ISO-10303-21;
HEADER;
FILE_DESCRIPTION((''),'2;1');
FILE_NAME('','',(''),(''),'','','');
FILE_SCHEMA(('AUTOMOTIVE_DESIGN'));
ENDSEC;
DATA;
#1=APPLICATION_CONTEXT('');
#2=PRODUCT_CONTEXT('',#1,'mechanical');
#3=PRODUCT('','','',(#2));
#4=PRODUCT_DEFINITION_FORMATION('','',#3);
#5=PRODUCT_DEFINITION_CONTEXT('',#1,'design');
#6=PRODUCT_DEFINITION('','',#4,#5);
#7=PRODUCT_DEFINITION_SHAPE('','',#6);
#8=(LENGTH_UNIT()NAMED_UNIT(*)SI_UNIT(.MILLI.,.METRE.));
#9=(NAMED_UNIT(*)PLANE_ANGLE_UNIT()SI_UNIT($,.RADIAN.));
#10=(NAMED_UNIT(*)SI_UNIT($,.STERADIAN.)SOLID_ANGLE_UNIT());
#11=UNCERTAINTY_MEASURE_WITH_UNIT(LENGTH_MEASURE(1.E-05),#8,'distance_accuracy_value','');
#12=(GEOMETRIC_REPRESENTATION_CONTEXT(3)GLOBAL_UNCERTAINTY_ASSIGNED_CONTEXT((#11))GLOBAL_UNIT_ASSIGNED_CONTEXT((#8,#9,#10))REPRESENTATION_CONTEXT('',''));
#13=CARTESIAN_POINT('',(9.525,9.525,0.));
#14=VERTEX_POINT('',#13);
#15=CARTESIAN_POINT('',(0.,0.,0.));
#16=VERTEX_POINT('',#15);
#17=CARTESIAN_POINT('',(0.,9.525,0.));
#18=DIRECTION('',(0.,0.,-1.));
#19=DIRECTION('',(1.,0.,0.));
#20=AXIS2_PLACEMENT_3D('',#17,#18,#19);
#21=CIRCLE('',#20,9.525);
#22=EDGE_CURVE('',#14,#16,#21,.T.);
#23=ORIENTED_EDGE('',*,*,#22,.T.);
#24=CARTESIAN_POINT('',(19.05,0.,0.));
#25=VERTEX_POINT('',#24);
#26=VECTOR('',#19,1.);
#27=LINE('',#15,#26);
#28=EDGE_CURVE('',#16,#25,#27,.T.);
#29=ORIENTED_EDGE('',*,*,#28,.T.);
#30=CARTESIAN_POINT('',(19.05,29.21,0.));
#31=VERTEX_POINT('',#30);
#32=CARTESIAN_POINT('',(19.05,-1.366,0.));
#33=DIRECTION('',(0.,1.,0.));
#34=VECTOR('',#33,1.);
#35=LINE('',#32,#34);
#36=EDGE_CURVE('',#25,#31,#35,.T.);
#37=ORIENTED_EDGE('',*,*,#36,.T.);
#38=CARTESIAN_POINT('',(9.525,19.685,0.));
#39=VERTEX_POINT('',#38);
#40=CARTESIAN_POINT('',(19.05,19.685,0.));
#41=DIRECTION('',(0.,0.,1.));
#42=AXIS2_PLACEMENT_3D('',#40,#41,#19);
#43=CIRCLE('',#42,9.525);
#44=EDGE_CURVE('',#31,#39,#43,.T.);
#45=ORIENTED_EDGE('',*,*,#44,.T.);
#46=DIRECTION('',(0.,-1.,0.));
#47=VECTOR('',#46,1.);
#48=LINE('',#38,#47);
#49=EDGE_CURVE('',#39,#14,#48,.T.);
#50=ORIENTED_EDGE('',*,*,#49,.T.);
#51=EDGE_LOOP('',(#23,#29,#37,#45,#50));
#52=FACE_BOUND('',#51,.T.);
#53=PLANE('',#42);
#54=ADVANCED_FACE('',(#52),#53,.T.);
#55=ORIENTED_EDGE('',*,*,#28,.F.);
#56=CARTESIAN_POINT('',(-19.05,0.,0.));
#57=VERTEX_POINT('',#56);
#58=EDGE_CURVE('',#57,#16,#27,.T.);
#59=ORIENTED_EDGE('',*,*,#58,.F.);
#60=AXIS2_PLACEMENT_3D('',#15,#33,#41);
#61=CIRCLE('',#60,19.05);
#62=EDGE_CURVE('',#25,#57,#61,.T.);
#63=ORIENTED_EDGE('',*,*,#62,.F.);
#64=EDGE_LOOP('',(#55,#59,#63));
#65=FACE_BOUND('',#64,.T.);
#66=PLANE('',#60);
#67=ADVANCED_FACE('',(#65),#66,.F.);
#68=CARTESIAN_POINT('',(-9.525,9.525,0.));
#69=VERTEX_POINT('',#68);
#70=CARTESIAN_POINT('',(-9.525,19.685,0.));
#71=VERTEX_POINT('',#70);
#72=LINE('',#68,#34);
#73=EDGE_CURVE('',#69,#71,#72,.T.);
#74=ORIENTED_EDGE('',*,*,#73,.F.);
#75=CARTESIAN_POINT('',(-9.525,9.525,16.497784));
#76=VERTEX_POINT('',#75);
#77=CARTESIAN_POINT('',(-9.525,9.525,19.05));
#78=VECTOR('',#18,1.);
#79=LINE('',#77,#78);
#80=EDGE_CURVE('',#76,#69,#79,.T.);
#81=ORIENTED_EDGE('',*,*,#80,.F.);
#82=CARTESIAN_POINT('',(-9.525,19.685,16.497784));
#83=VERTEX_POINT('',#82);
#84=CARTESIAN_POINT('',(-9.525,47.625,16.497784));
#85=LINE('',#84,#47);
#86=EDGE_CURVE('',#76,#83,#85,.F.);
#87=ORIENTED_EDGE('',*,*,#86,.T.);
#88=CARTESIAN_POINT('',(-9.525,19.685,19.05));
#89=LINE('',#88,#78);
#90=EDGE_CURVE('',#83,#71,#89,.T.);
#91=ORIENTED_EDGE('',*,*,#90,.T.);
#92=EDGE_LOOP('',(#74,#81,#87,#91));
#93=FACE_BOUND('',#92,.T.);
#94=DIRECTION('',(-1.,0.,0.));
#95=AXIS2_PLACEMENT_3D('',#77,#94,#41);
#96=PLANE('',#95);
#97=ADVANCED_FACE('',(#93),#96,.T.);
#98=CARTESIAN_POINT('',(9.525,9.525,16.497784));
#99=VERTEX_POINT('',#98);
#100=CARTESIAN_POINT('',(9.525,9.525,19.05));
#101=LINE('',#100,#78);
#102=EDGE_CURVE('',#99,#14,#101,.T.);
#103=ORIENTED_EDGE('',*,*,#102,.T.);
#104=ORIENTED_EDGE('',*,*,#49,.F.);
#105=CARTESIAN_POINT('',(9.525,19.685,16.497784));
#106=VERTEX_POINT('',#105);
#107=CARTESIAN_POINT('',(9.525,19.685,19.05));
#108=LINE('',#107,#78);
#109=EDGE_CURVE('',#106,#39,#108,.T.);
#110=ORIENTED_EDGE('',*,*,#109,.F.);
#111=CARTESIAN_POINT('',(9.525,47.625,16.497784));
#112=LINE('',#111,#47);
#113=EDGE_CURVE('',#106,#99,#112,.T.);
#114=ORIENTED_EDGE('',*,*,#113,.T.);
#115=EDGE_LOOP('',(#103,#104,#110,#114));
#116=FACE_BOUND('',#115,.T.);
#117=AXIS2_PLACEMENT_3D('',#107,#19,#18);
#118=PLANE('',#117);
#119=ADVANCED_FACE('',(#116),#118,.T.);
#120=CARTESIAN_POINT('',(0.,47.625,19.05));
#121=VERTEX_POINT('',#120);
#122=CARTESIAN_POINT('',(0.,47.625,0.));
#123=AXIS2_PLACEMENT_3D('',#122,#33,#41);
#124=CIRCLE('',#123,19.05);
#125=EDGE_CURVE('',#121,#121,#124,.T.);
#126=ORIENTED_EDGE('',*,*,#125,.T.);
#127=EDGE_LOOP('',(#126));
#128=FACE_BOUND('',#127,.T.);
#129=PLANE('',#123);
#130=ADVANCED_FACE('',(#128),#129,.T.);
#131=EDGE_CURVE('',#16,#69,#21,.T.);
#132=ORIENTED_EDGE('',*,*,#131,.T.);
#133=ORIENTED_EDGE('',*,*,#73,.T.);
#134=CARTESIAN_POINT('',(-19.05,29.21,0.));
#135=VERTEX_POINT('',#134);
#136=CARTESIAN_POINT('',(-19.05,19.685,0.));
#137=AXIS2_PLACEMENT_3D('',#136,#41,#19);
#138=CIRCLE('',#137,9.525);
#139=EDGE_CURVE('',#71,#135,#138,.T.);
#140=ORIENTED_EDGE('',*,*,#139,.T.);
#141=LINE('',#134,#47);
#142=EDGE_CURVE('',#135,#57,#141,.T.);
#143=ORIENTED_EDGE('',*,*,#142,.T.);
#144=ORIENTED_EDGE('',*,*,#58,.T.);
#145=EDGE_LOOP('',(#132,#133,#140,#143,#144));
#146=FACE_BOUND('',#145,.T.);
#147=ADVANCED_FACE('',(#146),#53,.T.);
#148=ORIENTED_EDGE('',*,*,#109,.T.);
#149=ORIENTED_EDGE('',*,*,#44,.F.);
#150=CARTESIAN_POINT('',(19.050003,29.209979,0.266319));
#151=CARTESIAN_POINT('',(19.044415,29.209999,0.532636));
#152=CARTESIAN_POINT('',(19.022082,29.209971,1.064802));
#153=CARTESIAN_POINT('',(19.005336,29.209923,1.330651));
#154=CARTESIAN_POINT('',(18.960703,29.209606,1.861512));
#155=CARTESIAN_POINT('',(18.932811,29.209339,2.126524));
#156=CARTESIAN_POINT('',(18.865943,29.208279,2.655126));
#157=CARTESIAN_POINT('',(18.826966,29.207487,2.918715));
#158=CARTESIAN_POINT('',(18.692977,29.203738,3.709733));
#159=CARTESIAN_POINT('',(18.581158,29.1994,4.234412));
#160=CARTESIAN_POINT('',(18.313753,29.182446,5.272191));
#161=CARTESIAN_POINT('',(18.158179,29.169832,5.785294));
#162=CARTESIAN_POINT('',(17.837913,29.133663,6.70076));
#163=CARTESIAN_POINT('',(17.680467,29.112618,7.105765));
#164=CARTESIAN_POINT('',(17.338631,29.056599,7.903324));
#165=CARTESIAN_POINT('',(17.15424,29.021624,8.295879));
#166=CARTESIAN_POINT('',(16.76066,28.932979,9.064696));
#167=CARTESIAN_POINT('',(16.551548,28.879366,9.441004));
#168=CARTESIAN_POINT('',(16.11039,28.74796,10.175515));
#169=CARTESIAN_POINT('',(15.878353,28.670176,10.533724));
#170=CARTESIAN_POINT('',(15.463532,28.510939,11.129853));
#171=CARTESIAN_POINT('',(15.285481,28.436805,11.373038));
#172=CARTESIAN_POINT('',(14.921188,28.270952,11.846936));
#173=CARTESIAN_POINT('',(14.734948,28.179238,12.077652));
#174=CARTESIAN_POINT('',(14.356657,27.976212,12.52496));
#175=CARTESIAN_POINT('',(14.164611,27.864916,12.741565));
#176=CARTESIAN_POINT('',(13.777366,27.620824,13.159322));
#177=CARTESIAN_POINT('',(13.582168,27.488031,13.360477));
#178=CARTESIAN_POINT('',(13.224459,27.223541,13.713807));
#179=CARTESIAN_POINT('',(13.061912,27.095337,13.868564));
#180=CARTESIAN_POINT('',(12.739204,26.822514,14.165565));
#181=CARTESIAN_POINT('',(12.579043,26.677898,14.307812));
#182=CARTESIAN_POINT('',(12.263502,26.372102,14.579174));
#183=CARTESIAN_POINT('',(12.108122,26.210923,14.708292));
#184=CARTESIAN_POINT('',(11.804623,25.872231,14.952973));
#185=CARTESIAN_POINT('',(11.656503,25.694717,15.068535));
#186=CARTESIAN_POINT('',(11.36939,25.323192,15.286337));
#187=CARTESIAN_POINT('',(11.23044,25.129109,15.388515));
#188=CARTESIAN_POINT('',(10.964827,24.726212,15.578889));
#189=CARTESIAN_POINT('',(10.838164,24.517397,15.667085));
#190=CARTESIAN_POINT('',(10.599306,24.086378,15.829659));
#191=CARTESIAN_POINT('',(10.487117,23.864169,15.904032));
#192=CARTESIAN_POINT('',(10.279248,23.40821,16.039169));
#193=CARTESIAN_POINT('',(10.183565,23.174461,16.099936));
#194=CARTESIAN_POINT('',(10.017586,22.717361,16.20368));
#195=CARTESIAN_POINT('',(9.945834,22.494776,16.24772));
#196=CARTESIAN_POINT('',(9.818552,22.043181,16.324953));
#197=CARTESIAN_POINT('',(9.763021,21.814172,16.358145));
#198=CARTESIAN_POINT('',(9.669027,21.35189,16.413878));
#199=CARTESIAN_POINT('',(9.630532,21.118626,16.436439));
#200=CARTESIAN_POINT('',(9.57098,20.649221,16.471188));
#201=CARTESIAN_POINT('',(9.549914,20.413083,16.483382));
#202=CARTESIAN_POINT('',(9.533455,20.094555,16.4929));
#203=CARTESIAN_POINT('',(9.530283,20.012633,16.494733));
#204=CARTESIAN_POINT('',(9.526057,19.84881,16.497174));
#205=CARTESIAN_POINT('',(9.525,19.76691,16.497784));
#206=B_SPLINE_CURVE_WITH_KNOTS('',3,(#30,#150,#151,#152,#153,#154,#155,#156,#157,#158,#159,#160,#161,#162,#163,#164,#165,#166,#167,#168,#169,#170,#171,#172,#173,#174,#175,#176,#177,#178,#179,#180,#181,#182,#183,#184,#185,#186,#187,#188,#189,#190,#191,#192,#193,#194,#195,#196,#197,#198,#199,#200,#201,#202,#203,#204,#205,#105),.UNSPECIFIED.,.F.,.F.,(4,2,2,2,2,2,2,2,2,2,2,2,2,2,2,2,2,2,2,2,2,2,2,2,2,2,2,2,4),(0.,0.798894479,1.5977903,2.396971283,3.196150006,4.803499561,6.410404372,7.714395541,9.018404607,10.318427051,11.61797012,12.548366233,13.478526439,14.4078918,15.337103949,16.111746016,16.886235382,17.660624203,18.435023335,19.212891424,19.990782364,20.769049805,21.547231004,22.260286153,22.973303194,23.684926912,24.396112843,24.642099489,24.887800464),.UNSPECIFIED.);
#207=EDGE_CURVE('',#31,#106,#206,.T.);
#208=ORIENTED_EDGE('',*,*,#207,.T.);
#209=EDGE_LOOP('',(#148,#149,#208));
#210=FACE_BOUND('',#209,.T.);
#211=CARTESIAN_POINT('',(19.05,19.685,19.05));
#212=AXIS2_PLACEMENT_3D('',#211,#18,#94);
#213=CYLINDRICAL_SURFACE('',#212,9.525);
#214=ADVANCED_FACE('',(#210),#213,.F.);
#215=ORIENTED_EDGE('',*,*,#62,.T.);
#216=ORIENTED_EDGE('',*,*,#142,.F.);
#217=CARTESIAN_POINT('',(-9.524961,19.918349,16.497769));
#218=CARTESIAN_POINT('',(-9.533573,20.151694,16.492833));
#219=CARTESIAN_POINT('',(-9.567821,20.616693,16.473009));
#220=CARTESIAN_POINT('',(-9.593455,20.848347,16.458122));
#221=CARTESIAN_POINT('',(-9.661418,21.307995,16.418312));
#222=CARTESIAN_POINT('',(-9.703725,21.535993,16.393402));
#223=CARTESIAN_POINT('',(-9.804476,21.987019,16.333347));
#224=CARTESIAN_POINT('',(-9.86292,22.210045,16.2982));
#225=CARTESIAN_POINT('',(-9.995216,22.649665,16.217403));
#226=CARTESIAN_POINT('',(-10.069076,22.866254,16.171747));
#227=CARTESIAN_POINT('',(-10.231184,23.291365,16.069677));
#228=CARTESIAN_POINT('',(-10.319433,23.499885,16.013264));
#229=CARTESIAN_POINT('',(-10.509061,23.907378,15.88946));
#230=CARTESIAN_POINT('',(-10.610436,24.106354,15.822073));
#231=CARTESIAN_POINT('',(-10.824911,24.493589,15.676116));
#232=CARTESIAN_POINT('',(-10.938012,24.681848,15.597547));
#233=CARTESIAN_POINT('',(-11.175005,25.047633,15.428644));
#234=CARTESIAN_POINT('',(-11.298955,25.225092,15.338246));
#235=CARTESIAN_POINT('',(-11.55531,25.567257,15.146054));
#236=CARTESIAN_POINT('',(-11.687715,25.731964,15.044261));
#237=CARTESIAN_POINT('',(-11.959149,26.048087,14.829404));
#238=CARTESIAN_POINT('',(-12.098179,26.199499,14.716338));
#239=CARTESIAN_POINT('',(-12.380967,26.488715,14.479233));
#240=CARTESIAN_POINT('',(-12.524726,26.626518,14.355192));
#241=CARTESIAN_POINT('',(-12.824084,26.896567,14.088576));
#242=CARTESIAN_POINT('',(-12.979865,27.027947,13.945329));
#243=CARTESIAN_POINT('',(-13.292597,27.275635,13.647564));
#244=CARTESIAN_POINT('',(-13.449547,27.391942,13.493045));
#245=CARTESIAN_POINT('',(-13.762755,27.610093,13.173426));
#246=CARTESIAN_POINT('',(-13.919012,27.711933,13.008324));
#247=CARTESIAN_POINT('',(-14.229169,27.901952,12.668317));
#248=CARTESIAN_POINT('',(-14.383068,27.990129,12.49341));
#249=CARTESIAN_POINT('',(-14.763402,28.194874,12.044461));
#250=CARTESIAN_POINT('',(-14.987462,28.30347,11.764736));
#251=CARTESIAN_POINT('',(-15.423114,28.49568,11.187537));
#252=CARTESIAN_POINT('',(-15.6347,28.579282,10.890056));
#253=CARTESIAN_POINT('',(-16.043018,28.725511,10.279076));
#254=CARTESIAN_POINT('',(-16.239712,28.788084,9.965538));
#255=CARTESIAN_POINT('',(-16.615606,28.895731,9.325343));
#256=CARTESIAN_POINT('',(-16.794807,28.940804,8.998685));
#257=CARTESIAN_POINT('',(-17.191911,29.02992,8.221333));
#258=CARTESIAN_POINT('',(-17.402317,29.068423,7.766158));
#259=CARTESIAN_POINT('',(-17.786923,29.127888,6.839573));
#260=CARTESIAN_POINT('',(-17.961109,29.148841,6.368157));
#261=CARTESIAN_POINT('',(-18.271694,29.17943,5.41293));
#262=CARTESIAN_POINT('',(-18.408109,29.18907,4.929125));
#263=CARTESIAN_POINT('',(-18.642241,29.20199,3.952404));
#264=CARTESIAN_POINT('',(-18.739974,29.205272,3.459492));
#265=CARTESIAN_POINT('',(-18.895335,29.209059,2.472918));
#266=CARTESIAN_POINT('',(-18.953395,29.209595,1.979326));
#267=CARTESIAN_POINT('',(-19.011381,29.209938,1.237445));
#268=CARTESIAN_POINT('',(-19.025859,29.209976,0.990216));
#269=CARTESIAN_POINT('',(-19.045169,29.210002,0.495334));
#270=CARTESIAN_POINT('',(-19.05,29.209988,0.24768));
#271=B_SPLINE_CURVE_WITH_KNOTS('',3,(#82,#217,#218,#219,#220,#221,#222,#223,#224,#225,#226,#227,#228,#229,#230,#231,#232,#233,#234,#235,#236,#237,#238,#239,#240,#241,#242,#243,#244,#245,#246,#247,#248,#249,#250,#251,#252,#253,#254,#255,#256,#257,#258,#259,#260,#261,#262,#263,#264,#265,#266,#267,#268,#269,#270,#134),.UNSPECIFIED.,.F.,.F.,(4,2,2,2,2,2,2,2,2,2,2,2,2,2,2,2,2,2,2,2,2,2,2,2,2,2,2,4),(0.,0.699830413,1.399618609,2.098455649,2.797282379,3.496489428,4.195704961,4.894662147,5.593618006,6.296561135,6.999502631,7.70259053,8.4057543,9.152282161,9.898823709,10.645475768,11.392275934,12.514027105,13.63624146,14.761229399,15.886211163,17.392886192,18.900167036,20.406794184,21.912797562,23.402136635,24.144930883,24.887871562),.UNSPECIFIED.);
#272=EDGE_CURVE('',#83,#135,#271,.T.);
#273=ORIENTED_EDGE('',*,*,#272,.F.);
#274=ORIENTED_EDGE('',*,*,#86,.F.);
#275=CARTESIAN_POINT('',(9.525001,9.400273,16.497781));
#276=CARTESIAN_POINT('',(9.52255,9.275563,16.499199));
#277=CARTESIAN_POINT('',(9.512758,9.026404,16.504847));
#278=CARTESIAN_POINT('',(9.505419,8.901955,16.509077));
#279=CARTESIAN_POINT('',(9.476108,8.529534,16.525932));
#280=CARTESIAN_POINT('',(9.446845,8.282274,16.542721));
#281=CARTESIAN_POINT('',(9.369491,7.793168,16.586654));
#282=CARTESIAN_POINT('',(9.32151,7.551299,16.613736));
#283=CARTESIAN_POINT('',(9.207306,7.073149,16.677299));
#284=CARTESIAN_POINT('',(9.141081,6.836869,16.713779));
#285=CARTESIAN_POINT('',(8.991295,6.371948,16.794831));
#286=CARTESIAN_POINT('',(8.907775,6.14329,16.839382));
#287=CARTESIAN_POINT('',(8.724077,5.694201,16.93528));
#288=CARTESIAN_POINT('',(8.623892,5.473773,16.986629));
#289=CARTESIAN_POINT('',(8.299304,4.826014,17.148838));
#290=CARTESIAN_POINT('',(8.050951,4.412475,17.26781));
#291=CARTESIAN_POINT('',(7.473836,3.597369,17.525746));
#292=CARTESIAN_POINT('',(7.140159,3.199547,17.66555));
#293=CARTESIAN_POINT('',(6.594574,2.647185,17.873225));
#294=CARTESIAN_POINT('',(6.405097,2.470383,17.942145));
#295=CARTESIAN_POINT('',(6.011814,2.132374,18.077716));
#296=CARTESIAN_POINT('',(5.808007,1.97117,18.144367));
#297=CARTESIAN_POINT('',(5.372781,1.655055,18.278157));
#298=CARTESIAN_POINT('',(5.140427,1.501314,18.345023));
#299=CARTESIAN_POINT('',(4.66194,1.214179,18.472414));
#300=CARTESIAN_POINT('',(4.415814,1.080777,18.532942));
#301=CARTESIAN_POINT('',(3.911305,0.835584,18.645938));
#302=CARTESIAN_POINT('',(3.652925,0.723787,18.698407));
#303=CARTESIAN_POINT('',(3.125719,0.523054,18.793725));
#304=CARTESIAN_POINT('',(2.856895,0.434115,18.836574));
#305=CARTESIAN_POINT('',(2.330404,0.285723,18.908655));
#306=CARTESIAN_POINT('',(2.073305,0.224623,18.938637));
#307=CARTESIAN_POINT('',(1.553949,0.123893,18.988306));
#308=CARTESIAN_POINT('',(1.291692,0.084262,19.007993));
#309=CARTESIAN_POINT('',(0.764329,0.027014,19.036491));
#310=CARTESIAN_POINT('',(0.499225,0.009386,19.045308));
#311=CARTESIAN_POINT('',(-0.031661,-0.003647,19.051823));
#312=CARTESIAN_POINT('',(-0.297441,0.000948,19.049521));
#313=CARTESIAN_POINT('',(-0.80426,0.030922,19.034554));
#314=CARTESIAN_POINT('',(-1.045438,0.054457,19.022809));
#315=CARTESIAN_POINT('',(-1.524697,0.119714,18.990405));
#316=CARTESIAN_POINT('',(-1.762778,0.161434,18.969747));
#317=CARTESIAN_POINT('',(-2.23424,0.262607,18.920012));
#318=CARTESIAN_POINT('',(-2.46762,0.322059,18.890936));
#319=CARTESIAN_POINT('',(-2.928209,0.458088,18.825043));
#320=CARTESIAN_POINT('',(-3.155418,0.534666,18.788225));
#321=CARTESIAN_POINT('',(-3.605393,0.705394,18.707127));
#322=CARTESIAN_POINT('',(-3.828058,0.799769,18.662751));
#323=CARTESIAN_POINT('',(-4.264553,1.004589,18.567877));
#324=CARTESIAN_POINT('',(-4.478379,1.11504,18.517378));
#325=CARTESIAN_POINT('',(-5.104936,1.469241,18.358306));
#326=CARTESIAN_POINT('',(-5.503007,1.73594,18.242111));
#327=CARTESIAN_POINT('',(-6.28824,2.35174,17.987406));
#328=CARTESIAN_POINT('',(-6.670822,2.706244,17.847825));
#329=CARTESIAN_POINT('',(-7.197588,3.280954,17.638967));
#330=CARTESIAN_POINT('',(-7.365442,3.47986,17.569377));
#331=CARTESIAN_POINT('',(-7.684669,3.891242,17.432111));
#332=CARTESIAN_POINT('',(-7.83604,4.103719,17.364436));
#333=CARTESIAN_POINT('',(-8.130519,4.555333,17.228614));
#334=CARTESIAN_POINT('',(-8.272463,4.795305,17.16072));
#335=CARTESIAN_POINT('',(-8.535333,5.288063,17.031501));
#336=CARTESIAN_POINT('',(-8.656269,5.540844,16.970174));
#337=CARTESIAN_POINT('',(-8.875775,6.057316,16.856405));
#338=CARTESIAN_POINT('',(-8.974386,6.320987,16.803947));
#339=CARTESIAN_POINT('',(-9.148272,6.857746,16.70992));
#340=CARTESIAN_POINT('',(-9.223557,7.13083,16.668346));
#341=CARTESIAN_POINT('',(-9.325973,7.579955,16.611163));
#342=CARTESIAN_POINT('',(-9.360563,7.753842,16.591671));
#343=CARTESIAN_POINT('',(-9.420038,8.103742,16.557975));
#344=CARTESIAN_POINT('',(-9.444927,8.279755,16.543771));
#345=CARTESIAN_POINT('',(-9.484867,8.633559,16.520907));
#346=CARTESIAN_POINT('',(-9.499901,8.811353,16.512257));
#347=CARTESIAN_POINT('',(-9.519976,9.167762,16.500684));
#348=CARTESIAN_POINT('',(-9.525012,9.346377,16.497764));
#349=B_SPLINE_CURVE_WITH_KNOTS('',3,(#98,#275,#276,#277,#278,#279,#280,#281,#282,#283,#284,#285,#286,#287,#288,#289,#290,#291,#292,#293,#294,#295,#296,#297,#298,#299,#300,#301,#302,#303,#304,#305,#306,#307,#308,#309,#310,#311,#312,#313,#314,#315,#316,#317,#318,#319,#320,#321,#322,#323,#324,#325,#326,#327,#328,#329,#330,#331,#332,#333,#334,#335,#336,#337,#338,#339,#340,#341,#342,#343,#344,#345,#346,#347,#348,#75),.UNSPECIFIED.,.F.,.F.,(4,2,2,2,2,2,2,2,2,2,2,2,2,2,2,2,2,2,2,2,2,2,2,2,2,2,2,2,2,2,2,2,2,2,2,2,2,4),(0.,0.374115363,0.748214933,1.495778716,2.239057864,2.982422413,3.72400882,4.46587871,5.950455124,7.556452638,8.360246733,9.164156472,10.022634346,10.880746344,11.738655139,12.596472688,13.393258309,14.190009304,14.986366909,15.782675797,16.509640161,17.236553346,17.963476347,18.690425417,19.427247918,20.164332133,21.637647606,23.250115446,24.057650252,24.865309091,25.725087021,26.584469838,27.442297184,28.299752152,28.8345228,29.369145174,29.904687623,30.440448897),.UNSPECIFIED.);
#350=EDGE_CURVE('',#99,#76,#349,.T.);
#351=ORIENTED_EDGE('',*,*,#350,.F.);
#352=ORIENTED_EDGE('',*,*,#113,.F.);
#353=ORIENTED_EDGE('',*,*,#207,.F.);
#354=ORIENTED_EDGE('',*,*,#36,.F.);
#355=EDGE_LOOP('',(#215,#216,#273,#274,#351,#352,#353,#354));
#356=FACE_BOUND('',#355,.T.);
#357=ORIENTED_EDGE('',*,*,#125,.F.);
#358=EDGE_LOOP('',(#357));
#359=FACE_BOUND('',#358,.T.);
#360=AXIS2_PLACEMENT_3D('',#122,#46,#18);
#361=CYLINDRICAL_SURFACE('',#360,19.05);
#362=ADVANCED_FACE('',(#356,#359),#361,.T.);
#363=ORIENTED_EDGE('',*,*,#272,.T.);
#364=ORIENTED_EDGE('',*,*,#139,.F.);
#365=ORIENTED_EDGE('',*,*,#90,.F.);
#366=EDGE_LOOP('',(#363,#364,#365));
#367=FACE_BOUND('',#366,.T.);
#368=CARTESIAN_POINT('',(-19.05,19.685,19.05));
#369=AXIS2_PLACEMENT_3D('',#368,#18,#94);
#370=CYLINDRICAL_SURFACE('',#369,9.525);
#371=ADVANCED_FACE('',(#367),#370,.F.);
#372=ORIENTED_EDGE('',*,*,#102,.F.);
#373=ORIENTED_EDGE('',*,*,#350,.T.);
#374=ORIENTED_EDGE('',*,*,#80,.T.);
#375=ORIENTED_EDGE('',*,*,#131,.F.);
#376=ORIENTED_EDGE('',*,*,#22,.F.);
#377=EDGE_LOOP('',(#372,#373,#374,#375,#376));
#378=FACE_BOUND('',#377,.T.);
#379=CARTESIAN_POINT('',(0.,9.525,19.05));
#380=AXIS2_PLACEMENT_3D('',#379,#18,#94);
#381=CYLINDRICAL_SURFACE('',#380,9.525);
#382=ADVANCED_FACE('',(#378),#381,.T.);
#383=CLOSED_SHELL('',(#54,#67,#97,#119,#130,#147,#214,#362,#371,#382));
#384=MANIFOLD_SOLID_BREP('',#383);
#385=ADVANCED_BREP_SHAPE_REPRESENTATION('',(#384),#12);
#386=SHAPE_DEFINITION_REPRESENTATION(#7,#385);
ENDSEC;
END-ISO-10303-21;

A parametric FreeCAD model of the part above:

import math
import FreeCAD as App
import Part
import Sketcher
from FreeCAD import Vector
Q = App.Units.Quantity

doc = App.newDocument("Part")
params = doc.addObject("Spreadsheet::Sheet", "Params")
for row, (alias, value) in enumerate([
    ("sketch1_diameter", "1.5 in"),
    ("pad1_length", "1.875 in"),
    ("sketch2_width", "1.5 in"),
    ("sketch2_height", "0.4 in"),
    ("sketch2_radius", "0.375 in"),
], start=1):
    params.set(f"A{row}", alias)
    params.set(f"B{row}", "=" + value)
    params.setAlias(f"B{row}", alias)

body = doc.addObject("PartDesign::Body", "Body")

sketch1 = body.newObject("Sketcher::SketchObject", "Sketch")
sketch1.AttachmentSupport = (doc.getObject("XZ_Plane"), [""])
sketch1.MapMode = "FlatFace"
sketch1.addGeometry(Part.Circle(Vector(0, 0, 0), Vector(0, 0, 1), 19), False)
sketch1.addConstraint([
    Sketcher.Constraint("Coincident", 0, 3, -1, 1),
    Sketcher.Constraint("Diameter", 0, Q("1.5 in")),
])
sketch1.setExpression("Constraints[1]", "Params.sketch1_diameter")
pad1 = body.newObject("PartDesign::Pad", "Pad")
pad1.Profile = sketch1
pad1.setExpression("Length", "Params.pad1_length")
pad1.Reversed = True

sketch2 = body.newObject("Sketcher::SketchObject", "Sketch001")
sketch2.AttachmentSupport = (doc.getObject("XY_Plane"), [""])
sketch2.MapMode = "FlatFace"
sketch2.addGeometry([
    Part.LineSegment(Vector(-19, -1, 0), Vector(19, -1, 0)),
    Part.LineSegment(Vector(19, -1, 0), Vector(19, 29, 0)),
    Part.ArcOfCircle(Part.Circle(Vector(19, 20, 0), Vector(0, 0, 1), 10), math.radians(90), math.radians(180)),
    Part.LineSegment(Vector(10, 20, 0), Vector(10, 10, 0)),
    Part.ArcOfCircle(Part.Circle(Vector(0, 10, 0), Vector(0, 0, 1), 10), math.radians(180), math.radians(360)),
    Part.LineSegment(Vector(-10, 10, 0), Vector(-10, 20, 0)),
    Part.ArcOfCircle(Part.Circle(Vector(-19, 20, 0), Vector(0, 0, 1), 10), math.radians(0), math.radians(90)),
    Part.LineSegment(Vector(-19, 29, 0), Vector(-19, -1, 0)),
], False)
sketch2.addConstraint([
    Sketcher.Constraint("Coincident", 0, 2, 1, 1),
    Sketcher.Constraint("Coincident", 1, 2, 2, 1),
    Sketcher.Constraint("Tangent", 2, 2, 3, 1),
    Sketcher.Constraint("Tangent", 3, 2, 4, 2),
    Sketcher.Constraint("Tangent", 4, 1, 5, 1),
    Sketcher.Constraint("Tangent", 5, 2, 6, 1),
    Sketcher.Constraint("Coincident", 6, 2, 7, 1),
    Sketcher.Constraint("Coincident", 7, 2, 0, 1),
    Sketcher.Constraint("Horizontal", 0),
    Sketcher.Constraint("Vertical", 1),
    Sketcher.Constraint("Vertical", 3),
    Sketcher.Constraint("Vertical", 5),
    Sketcher.Constraint("Vertical", 7),
    Sketcher.Constraint("Equal", 2, 4),
    Sketcher.Constraint("Equal", 4, 6),
    Sketcher.Constraint("Symmetric", 2, 3, 6, 3, -2),
    Sketcher.Constraint("Vertical", 2, 3, 0, 2),
    Sketcher.Constraint("DistanceX", 0, 1, 0, 2, Q("1.5 in")),
    Sketcher.Constraint("DistanceY", 3, 2, 3, 1, Q("0.4 in")),
    Sketcher.Constraint("Radius", 2, Q("0.375 in")),
    Sketcher.Constraint("DistanceY", -1, 1, 1, 2, Q("1.15 in")),
    Sketcher.Constraint("DistanceY", 1, 1, 1, 2, 30.576),
])
sketch2.setExpression("Constraints[17]", "Params.sketch2_width")
sketch2.setExpression("Constraints[18]", "Params.sketch2_height")
sketch2.setExpression("Constraints[19]", "Params.sketch2_radius")
pocket1 = body.newObject("PartDesign::Pocket", "Pocket")
pocket1.Profile = sketch2
pocket1.Type = "ThroughAll"
pocket1.Reversed = True

doc.recompute()
